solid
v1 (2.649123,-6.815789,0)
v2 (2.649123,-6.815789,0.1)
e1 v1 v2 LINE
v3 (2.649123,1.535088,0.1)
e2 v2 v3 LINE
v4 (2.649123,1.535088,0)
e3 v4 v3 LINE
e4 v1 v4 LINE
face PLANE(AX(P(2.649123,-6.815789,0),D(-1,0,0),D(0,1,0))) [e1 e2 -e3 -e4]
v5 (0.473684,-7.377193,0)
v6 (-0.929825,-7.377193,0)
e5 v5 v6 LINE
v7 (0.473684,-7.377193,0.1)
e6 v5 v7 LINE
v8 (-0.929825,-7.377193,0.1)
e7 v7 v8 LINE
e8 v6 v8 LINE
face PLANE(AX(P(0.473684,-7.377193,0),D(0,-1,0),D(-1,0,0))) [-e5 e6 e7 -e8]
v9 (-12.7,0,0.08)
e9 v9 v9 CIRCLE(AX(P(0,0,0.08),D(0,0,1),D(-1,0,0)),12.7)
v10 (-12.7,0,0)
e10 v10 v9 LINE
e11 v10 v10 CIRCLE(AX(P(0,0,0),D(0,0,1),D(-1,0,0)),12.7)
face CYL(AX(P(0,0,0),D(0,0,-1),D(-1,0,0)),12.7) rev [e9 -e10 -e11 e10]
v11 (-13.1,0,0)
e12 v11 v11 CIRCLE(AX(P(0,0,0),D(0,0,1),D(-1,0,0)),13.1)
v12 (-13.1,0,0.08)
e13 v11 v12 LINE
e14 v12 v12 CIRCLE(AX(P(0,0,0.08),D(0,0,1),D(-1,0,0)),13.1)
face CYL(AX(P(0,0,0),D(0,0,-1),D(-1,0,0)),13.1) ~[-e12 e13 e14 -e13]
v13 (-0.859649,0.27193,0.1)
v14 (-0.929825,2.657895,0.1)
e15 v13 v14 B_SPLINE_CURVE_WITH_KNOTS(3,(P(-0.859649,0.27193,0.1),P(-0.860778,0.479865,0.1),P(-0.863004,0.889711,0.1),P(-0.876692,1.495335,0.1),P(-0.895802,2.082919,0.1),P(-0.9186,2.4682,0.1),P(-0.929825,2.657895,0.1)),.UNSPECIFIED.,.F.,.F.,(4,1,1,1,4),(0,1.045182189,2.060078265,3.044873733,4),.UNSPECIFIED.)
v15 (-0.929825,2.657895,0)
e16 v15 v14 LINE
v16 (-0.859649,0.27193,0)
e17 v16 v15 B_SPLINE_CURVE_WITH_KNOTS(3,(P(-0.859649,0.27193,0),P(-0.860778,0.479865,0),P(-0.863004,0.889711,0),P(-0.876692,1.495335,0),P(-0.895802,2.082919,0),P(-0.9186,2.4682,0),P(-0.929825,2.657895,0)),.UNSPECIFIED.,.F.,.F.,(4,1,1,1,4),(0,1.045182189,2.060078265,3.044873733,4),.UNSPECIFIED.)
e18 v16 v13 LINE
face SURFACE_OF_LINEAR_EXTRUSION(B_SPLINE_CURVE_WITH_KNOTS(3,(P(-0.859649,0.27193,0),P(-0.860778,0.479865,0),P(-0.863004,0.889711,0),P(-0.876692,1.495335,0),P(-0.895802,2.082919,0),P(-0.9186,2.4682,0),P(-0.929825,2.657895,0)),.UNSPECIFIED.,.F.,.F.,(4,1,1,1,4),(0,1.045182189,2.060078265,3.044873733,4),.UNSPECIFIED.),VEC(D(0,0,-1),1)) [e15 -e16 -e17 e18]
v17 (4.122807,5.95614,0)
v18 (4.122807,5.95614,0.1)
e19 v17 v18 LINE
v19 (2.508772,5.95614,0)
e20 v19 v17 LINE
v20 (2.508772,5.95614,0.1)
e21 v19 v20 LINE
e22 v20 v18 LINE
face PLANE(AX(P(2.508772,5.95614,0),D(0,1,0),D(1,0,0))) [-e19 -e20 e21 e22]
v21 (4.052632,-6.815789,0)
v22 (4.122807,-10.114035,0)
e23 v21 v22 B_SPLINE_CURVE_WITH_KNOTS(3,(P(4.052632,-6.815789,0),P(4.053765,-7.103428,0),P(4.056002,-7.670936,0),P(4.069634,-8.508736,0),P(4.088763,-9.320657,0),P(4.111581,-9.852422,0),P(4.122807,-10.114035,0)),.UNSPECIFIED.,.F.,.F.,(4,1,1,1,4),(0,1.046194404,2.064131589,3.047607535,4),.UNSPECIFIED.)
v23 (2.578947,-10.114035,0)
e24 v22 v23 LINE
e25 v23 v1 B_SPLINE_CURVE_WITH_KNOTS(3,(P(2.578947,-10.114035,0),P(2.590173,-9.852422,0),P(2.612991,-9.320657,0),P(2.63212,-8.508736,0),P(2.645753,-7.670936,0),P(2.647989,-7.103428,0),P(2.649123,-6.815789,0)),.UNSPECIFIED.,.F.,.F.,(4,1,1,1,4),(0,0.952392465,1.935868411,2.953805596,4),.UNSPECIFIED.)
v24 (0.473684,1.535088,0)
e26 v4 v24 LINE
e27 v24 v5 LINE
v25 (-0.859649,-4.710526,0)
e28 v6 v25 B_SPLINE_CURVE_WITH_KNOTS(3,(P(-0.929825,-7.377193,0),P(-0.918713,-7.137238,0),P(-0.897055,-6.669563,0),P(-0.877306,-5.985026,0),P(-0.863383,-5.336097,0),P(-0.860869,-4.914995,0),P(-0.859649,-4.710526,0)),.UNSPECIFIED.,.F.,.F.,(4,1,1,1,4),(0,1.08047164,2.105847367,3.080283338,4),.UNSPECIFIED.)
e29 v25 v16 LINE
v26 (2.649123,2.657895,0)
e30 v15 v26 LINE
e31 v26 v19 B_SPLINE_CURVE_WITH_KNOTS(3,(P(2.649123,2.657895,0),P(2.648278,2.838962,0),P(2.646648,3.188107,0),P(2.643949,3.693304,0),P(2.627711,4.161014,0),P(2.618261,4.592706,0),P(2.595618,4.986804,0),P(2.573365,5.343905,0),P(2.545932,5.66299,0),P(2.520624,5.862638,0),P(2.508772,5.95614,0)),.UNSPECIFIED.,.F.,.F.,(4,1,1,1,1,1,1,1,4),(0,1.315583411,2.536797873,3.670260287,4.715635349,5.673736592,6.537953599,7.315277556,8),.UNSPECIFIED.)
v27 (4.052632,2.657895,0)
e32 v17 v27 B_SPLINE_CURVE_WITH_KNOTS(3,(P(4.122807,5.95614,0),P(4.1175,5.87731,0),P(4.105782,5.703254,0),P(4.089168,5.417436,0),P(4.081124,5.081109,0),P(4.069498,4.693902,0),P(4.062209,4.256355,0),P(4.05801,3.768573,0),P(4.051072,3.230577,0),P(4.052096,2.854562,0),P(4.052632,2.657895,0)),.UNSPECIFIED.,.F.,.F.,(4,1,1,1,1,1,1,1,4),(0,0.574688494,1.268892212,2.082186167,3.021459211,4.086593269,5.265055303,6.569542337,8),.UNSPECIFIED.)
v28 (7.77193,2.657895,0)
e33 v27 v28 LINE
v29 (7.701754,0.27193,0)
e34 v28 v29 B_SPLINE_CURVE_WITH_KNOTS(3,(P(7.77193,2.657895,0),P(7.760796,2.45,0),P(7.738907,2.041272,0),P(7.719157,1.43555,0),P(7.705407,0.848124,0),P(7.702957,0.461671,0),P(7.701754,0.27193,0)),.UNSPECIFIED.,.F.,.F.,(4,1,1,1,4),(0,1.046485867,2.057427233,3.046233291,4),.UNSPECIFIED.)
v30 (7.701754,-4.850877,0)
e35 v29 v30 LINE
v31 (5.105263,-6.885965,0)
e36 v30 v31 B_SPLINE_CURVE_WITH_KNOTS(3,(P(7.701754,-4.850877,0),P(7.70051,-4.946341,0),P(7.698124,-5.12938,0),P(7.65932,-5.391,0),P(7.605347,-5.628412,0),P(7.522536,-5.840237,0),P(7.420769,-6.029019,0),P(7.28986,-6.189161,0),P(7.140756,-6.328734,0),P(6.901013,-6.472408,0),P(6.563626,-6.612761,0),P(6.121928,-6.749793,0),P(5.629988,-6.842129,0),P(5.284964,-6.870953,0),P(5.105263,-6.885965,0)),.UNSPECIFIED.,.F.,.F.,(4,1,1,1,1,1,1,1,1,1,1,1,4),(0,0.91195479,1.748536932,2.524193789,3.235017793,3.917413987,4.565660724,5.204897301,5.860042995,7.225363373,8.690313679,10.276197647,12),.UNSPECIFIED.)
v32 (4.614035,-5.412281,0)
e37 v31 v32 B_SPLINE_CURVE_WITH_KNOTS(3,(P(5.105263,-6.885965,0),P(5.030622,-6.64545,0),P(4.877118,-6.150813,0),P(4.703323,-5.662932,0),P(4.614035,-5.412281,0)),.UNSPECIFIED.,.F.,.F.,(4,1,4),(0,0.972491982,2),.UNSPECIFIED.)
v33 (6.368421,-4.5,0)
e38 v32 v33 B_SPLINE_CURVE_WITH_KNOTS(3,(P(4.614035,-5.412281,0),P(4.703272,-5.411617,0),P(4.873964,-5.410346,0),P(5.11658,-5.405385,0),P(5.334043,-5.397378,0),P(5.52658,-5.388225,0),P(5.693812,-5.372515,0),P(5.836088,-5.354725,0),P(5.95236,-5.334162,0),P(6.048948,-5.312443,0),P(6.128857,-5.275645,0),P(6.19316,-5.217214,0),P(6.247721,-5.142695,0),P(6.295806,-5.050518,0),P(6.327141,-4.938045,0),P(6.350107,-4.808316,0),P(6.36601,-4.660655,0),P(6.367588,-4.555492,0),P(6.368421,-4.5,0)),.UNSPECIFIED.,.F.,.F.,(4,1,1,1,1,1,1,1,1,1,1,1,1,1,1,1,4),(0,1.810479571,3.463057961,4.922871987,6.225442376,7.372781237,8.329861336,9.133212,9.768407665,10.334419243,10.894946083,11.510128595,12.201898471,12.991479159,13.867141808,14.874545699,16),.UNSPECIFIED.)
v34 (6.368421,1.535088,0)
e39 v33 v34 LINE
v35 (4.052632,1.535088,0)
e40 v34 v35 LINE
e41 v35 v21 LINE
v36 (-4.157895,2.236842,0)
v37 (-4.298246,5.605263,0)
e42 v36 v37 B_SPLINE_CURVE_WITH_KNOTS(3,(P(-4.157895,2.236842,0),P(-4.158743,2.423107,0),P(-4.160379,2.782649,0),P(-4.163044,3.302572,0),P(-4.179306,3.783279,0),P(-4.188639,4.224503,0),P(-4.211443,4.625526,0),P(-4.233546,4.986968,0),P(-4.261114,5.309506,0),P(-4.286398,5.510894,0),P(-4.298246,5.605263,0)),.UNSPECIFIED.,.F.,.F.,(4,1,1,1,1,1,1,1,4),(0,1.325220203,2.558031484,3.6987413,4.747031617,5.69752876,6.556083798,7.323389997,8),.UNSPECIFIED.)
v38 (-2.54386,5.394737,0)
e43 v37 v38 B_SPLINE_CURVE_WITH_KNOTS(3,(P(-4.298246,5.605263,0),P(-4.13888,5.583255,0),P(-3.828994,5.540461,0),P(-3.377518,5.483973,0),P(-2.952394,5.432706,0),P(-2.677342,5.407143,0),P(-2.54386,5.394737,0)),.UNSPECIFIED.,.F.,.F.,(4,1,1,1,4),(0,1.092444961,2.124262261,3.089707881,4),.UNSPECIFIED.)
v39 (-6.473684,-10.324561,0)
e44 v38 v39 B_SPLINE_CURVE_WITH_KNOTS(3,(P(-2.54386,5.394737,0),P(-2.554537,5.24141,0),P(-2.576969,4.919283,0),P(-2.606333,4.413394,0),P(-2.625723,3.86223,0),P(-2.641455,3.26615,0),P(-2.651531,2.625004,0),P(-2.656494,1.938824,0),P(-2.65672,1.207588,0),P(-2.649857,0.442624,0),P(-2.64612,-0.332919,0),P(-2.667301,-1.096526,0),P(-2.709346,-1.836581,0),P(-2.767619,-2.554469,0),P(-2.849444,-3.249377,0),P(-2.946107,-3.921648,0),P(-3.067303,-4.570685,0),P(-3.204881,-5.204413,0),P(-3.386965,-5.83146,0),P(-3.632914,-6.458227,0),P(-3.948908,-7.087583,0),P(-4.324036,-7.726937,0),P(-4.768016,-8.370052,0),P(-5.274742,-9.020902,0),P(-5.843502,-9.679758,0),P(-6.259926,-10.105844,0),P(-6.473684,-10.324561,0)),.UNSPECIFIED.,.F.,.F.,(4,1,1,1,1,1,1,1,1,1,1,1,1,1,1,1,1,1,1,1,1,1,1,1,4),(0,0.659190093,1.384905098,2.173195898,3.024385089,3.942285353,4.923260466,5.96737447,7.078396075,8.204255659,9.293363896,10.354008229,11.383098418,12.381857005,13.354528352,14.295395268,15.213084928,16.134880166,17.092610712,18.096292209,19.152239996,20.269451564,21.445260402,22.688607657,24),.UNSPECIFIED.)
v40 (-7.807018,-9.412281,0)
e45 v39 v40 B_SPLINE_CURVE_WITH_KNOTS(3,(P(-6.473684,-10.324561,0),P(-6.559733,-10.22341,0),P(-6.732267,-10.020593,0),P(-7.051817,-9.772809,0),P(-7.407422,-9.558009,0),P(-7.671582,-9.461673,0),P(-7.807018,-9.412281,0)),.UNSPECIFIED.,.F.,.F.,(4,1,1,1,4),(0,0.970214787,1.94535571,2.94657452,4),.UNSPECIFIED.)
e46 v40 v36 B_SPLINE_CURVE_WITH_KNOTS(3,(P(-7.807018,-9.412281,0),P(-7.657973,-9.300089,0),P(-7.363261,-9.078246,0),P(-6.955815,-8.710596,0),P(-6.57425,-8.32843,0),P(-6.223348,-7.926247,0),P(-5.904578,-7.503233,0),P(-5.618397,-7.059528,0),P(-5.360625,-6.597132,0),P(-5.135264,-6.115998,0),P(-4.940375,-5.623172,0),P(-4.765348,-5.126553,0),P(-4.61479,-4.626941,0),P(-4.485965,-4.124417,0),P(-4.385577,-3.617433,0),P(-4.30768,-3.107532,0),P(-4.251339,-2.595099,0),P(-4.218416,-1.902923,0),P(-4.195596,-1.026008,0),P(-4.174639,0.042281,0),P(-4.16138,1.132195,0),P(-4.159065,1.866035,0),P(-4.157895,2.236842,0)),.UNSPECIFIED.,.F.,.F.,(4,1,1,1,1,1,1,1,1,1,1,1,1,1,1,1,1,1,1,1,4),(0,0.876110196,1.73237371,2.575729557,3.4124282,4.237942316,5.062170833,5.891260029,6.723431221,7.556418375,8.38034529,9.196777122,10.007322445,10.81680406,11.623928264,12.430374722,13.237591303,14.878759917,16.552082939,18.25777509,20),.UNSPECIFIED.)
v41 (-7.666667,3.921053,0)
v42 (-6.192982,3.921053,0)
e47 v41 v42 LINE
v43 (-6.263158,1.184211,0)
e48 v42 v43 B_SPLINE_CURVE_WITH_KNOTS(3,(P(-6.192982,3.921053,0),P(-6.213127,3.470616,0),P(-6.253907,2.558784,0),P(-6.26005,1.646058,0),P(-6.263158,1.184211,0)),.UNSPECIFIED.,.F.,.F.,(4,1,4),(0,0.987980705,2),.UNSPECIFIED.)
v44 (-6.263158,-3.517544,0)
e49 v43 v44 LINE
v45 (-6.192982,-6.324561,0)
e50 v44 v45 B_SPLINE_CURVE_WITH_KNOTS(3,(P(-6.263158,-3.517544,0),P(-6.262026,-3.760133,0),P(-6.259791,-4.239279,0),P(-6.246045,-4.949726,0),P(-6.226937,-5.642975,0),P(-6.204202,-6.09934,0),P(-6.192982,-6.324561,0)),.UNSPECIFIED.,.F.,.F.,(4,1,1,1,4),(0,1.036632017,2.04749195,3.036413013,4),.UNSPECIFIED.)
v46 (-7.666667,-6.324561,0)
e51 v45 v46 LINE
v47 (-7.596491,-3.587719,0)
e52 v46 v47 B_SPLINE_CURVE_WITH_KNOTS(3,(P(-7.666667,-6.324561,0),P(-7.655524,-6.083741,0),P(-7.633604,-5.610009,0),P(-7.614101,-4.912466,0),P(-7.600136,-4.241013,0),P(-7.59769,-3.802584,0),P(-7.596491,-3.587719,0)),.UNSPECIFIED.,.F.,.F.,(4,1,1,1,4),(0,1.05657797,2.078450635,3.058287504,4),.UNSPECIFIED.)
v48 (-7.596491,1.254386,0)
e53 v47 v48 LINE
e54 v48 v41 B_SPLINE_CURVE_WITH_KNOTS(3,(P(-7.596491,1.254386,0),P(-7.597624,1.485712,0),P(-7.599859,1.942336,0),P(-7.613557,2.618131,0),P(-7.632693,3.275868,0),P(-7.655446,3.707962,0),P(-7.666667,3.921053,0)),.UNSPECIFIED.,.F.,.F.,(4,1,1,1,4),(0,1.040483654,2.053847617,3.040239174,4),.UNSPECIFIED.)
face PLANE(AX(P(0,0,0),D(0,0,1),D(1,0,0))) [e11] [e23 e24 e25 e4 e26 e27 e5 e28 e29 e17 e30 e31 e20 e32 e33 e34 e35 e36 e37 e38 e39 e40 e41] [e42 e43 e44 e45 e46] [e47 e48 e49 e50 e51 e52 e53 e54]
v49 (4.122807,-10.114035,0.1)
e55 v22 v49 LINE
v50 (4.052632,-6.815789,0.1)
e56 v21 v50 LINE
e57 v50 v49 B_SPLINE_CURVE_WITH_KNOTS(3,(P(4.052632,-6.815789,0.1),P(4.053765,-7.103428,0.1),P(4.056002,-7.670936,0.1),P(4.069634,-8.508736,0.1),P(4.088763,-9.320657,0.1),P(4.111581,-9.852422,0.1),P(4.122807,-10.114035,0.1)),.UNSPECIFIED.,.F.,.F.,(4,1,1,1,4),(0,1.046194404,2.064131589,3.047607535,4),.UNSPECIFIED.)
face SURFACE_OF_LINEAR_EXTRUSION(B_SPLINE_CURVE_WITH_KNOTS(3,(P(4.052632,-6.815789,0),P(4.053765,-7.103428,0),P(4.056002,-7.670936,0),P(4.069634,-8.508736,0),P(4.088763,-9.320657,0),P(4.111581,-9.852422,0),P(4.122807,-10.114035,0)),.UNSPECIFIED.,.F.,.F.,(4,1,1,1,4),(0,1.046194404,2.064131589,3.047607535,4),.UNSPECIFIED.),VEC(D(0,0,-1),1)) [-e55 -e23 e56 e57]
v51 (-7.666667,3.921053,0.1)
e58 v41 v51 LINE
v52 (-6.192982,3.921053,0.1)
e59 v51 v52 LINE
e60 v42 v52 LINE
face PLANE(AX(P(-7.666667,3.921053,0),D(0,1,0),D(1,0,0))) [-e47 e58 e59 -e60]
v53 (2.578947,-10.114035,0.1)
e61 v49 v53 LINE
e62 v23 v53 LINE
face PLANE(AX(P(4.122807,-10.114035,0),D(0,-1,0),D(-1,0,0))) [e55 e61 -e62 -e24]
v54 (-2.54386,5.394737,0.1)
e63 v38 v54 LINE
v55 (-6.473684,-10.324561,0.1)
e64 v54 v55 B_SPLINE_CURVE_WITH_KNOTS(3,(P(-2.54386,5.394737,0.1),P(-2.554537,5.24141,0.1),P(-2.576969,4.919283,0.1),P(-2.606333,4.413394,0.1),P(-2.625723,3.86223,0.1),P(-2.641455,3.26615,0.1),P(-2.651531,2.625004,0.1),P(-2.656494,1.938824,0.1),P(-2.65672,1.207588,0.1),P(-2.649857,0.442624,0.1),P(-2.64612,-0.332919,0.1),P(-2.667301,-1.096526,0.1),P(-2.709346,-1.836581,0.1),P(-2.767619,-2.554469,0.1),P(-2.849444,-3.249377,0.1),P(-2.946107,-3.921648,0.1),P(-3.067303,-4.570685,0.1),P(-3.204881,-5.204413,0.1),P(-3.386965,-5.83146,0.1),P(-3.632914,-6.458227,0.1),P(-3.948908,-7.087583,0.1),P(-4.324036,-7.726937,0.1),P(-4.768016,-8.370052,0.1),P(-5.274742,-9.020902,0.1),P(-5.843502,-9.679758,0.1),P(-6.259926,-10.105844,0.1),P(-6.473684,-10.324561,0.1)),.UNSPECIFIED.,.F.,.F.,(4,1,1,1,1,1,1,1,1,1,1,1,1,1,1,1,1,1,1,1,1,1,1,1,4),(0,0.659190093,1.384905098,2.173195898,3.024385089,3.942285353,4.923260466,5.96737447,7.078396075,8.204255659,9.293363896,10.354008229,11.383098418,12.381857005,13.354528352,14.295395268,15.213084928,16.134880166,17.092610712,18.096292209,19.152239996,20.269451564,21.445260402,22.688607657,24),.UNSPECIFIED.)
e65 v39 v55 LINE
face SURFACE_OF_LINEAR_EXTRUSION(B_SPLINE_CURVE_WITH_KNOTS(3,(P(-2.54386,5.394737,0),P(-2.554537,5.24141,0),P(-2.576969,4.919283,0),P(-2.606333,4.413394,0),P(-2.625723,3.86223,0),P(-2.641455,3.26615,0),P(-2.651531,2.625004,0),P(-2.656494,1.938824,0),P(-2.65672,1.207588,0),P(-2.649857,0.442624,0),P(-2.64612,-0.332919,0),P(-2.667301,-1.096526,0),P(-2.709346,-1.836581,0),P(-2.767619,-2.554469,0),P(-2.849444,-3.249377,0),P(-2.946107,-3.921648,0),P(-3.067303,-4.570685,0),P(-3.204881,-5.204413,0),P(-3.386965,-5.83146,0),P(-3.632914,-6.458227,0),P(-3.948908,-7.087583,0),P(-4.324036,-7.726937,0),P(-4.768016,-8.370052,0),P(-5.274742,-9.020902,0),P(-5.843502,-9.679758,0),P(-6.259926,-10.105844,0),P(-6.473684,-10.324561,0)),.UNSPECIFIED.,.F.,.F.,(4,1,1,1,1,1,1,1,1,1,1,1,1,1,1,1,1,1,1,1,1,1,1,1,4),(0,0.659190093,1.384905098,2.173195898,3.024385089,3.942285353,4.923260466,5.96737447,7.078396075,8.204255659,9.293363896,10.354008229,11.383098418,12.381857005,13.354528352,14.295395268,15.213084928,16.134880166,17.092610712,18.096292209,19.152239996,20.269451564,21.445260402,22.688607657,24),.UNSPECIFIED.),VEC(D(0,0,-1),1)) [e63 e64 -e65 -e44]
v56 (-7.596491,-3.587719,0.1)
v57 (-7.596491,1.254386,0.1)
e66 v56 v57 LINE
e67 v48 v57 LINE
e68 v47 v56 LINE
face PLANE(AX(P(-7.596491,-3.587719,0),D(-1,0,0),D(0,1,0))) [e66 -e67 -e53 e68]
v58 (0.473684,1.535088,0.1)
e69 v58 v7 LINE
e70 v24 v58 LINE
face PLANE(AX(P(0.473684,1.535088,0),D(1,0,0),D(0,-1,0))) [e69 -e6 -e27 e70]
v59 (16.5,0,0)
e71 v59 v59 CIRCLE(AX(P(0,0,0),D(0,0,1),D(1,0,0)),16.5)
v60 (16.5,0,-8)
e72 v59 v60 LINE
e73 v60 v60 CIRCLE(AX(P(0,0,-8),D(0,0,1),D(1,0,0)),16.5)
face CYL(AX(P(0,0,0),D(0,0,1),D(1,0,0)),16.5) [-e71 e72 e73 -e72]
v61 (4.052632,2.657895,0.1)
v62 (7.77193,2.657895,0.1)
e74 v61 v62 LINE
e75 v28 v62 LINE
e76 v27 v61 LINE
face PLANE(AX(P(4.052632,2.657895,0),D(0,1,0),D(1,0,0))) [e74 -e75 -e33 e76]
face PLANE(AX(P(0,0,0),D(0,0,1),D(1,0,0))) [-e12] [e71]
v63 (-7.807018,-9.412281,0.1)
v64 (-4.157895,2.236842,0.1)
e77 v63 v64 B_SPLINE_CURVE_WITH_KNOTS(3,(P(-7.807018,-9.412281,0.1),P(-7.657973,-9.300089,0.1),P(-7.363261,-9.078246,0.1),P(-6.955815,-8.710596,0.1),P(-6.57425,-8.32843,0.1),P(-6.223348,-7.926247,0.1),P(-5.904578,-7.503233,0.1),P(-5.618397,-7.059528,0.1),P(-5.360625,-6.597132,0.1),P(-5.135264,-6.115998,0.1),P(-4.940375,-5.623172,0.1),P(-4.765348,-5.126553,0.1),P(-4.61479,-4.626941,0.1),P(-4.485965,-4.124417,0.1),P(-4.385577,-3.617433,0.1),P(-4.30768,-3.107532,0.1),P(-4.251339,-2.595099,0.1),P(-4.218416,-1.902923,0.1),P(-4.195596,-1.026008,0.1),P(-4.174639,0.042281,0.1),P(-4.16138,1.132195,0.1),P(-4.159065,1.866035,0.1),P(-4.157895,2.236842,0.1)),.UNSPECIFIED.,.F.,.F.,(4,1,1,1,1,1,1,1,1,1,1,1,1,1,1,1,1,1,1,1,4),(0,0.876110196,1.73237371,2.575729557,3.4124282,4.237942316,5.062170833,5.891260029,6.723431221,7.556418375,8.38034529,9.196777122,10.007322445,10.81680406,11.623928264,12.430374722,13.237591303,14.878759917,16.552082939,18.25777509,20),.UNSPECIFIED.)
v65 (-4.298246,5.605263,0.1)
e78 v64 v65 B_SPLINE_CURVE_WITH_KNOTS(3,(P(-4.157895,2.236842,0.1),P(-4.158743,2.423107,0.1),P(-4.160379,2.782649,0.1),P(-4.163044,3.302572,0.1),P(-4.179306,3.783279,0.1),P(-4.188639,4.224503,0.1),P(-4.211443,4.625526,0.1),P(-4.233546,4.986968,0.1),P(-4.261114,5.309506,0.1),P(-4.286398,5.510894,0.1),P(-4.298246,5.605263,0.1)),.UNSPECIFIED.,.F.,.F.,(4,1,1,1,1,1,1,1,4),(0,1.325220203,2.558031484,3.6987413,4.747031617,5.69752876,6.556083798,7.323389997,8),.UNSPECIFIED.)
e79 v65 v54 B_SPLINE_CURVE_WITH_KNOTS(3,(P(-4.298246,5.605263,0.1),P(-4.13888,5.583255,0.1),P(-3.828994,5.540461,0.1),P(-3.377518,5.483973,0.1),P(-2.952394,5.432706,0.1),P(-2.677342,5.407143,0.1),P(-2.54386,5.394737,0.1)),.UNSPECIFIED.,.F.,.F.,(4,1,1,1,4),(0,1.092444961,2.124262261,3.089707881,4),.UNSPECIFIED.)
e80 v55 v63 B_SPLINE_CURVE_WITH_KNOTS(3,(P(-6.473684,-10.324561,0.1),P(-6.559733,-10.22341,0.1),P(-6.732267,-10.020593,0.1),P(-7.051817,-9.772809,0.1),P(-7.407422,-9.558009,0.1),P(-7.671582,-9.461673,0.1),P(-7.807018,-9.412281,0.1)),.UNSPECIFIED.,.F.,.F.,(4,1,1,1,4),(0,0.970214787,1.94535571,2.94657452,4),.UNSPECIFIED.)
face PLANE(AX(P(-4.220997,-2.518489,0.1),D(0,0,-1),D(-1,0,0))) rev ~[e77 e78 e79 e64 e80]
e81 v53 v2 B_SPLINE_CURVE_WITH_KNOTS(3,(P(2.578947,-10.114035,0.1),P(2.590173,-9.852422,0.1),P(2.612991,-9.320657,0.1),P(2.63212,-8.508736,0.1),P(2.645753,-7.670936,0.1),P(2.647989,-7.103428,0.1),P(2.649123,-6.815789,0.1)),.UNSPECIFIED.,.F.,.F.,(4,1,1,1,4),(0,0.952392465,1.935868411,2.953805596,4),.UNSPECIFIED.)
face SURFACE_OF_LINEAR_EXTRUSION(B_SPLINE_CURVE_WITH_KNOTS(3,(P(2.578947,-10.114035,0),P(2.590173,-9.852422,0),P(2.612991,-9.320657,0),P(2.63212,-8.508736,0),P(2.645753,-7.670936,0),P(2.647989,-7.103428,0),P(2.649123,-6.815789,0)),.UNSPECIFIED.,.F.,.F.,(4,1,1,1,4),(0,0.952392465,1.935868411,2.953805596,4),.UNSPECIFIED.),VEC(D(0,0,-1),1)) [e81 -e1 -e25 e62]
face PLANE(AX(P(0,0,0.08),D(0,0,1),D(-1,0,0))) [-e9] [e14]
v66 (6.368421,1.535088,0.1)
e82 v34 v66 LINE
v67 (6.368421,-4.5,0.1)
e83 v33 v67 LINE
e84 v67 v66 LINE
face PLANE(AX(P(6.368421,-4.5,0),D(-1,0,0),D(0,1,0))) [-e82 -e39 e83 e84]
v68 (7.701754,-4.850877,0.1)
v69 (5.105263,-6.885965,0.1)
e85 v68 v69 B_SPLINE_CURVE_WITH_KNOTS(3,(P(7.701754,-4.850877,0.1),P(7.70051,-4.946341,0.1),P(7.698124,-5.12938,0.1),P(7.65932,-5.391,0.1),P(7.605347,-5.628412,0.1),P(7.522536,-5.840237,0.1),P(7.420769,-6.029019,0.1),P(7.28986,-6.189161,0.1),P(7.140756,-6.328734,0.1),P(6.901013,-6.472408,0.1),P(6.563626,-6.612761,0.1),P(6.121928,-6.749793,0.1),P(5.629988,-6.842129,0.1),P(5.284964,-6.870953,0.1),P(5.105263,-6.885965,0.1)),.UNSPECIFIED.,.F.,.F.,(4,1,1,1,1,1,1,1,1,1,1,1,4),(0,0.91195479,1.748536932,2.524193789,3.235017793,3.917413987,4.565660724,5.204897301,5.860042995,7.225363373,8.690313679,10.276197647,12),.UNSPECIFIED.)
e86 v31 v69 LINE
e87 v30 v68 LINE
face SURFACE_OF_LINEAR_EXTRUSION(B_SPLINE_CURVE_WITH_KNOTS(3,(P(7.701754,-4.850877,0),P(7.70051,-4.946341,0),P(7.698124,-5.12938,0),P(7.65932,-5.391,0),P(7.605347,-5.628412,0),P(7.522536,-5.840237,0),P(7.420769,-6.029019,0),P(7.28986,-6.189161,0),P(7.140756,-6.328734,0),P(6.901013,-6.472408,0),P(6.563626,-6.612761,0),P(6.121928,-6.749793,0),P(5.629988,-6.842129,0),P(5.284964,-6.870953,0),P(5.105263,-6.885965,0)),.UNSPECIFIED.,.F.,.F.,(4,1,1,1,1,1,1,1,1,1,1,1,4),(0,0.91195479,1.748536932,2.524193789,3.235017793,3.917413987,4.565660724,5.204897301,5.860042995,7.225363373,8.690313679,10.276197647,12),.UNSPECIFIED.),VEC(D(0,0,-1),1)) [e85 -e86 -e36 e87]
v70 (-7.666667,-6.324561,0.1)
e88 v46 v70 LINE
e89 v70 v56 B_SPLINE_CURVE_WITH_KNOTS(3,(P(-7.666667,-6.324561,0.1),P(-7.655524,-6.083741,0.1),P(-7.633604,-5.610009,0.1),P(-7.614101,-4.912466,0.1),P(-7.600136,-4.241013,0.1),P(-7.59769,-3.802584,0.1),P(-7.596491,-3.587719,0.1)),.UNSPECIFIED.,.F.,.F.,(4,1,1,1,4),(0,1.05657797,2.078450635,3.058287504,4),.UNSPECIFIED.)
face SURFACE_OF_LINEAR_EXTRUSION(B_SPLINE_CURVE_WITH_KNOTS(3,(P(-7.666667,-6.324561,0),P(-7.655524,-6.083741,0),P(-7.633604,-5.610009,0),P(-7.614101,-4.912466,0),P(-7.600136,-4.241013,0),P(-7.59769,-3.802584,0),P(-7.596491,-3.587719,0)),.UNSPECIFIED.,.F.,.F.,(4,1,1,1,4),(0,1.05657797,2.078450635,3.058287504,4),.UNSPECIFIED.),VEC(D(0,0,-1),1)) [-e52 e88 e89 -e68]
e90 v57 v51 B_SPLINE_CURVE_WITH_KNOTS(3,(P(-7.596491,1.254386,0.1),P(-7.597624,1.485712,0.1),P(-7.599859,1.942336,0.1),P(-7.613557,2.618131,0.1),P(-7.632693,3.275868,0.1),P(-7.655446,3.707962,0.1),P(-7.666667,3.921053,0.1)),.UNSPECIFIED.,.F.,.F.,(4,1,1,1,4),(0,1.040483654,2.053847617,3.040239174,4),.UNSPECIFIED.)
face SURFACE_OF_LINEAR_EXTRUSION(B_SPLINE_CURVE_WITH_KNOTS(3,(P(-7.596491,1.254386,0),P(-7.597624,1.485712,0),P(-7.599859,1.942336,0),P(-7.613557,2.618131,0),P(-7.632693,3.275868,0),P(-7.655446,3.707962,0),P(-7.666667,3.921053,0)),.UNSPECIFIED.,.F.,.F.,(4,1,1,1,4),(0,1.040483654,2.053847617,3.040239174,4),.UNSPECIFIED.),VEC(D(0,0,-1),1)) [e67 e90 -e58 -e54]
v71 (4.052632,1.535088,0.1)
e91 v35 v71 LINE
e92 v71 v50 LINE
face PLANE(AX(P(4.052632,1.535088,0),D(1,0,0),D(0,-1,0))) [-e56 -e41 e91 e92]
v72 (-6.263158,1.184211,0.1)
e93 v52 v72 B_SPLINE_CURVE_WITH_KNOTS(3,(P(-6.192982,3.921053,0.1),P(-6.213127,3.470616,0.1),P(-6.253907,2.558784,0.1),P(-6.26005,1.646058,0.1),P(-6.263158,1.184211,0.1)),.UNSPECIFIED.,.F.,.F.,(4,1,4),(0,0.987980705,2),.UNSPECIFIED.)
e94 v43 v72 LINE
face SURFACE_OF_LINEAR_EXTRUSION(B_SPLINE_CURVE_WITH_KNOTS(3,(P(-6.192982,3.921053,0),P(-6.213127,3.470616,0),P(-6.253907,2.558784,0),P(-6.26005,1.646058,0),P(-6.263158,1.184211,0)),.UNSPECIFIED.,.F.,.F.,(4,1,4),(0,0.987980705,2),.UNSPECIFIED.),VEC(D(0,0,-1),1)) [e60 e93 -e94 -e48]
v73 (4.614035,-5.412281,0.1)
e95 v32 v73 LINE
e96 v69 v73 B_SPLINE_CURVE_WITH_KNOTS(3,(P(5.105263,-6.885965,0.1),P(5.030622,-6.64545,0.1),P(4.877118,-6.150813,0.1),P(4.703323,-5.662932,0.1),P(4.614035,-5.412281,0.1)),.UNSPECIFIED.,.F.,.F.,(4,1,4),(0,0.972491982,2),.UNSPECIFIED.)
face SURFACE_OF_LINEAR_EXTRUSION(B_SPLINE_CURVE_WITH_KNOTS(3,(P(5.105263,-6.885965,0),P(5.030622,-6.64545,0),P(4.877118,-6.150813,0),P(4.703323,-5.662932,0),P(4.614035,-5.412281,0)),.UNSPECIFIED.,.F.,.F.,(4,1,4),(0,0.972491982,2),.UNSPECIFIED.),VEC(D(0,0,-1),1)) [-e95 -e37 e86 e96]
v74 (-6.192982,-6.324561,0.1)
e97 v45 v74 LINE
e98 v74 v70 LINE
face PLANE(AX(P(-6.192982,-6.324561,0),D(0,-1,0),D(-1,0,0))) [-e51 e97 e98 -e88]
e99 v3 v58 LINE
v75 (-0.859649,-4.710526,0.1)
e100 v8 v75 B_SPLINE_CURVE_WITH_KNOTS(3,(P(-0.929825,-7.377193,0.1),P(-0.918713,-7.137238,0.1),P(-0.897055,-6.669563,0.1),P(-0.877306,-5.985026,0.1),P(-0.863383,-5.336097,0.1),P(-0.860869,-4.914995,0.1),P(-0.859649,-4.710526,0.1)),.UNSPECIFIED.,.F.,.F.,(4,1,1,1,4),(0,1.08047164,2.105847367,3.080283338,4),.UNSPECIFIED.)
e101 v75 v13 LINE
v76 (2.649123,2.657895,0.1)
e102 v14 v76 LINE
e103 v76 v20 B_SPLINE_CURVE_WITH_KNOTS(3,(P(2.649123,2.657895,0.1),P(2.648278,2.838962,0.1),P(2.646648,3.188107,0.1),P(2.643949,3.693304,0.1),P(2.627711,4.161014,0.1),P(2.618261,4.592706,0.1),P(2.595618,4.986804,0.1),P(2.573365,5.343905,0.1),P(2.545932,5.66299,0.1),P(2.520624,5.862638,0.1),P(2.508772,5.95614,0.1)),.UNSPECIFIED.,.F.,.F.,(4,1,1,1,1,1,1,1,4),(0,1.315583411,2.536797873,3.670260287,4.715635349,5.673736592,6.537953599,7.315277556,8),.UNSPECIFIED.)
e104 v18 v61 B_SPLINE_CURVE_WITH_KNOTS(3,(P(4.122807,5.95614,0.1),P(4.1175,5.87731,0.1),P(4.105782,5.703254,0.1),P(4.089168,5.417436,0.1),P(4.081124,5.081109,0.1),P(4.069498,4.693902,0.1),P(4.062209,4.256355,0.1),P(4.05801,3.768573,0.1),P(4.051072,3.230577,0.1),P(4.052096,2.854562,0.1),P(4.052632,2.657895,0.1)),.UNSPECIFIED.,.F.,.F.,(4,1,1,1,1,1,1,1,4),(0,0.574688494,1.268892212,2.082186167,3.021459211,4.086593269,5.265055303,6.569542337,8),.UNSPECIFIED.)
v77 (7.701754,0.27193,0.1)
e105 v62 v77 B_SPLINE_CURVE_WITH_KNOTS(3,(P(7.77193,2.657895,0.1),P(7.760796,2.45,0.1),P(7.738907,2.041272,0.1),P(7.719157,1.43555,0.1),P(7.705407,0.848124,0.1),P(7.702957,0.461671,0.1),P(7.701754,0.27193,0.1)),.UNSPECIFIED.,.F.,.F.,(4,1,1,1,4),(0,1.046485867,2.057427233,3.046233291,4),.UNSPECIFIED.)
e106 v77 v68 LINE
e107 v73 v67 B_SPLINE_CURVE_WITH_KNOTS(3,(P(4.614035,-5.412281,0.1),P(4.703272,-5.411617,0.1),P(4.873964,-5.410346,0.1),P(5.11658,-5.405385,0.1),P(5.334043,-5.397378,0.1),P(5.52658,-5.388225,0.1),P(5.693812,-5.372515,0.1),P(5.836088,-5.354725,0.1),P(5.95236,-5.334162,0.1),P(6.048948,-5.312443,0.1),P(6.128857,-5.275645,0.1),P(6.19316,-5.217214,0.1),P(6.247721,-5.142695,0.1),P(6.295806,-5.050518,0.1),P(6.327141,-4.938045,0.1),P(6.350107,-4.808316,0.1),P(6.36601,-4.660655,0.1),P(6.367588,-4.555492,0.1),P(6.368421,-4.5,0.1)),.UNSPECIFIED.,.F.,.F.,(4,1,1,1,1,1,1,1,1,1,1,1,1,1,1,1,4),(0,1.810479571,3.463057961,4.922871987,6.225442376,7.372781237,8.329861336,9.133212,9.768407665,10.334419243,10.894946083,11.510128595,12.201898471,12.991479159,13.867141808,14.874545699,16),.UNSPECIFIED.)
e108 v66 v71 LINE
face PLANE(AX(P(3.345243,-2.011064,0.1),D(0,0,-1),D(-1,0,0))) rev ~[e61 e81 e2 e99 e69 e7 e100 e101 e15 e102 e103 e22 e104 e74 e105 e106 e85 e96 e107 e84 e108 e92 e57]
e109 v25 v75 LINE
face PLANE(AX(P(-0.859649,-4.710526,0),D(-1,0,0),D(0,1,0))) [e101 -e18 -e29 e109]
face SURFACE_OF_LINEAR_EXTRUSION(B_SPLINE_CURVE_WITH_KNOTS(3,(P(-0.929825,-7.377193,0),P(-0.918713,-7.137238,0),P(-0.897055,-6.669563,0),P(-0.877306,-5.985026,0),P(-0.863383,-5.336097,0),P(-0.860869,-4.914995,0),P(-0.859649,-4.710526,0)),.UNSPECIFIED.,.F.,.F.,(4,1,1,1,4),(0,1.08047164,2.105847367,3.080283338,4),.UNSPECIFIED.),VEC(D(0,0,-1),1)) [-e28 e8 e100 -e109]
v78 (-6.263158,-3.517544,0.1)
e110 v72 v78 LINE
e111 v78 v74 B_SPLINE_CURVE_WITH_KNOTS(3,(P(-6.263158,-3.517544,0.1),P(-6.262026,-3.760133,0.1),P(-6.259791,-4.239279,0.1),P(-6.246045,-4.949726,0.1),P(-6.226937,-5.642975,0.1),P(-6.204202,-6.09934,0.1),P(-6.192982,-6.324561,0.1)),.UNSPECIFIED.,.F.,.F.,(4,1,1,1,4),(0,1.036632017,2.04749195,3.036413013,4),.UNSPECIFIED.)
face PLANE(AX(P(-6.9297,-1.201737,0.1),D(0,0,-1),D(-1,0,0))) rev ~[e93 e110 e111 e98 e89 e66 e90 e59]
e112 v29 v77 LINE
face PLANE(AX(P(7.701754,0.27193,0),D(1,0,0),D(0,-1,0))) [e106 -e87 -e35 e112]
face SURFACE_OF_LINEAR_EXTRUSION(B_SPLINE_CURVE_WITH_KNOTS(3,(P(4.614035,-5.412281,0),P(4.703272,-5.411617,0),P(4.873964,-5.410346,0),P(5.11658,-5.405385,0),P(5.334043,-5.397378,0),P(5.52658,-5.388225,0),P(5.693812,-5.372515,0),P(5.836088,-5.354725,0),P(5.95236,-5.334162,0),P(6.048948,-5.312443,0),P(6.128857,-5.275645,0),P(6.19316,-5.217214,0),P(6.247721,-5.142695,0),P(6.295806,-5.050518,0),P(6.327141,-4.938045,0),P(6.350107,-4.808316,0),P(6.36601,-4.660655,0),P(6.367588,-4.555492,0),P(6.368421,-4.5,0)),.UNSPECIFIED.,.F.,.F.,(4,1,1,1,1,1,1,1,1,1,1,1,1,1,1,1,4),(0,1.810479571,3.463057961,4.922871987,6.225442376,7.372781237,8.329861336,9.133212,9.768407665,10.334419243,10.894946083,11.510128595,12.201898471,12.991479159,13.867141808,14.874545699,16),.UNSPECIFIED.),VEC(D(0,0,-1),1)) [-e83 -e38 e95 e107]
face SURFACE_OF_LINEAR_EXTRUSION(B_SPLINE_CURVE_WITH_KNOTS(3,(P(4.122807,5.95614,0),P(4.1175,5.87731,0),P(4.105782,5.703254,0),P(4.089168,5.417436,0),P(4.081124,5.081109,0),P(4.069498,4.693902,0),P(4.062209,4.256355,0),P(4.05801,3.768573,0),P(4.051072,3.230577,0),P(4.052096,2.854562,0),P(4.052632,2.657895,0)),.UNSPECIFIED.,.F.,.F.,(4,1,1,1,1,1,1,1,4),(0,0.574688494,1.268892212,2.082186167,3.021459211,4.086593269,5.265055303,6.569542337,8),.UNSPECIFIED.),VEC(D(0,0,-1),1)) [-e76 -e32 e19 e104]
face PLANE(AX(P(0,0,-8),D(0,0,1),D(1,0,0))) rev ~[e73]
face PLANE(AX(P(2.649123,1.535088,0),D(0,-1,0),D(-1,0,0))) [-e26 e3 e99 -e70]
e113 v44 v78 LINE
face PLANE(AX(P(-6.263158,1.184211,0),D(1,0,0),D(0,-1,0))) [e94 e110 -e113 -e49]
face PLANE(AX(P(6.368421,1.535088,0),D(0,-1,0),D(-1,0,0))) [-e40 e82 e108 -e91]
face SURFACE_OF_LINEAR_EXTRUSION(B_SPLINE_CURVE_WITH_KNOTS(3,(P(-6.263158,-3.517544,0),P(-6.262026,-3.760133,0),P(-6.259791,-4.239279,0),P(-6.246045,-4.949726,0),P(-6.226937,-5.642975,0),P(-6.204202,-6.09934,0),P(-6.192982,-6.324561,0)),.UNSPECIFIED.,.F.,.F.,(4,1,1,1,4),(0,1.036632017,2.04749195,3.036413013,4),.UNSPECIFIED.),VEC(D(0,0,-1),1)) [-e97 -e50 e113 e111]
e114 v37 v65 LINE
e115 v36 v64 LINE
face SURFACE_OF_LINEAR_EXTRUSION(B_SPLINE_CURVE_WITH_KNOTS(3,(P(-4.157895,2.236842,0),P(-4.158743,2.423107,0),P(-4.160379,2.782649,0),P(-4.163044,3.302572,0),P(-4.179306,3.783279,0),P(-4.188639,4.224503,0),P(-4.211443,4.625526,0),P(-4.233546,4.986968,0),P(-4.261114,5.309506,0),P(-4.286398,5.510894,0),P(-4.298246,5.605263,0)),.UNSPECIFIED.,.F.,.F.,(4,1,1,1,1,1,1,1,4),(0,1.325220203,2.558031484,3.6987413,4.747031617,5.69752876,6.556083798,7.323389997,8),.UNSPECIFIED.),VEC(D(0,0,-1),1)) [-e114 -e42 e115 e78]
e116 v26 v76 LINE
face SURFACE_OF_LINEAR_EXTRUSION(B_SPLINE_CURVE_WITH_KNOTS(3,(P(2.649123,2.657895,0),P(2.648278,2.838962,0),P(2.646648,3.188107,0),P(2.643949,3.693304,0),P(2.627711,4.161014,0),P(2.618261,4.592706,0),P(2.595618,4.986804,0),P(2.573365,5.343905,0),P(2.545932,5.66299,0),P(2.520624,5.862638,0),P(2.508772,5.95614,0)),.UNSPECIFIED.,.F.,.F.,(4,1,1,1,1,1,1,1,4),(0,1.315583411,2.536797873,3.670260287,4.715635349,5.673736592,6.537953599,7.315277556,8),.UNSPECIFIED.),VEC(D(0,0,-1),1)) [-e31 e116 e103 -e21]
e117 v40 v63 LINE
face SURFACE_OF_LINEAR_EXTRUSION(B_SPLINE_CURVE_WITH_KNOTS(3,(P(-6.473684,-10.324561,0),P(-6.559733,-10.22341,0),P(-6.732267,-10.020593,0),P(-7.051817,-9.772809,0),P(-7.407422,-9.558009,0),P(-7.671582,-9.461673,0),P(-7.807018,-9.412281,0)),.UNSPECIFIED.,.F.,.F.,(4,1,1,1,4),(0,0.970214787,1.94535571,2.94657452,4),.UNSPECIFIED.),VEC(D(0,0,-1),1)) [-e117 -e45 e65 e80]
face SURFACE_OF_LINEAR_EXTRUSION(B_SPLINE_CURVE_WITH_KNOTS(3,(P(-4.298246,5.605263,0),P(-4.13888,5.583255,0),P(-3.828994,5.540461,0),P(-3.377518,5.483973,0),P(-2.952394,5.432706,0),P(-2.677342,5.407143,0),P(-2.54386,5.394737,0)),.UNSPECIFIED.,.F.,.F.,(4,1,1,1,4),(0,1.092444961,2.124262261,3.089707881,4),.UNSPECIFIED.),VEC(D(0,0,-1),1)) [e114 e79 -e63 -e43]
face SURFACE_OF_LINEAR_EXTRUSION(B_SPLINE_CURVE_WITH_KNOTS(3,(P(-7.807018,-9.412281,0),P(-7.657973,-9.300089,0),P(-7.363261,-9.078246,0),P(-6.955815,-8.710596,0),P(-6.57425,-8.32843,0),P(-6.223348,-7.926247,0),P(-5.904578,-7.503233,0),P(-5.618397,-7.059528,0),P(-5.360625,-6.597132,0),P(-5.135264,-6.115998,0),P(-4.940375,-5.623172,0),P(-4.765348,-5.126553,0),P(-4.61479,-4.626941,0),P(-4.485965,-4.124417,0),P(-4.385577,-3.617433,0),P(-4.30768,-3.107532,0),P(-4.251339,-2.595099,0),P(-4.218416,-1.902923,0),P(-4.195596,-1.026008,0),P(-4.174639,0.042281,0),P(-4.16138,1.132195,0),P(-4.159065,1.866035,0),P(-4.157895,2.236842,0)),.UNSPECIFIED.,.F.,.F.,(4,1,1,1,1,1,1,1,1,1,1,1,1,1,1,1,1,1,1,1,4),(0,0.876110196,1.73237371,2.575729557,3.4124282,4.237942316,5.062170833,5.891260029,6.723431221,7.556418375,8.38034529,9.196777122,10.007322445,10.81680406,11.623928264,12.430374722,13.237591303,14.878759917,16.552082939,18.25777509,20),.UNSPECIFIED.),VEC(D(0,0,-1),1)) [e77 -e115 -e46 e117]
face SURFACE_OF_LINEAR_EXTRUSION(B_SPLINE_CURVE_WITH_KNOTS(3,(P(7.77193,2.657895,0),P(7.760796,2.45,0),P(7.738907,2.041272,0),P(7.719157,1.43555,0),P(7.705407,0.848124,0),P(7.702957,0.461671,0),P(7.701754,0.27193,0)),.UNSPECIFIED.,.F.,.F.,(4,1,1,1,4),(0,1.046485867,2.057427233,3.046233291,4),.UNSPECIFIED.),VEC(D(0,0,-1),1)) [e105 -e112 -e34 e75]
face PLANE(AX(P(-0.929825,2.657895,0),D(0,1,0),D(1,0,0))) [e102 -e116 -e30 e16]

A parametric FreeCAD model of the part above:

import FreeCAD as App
import Part
import Sketcher
from FreeCAD import Vector
Q = App.Units.Quantity

doc = App.newDocument("Part")
body = doc.addObject("PartDesign::Body", "Body")

# Sketch on XY plane
sketch1 = body.newObject("Sketcher::SketchObject", "Sketch")
sketch1.AttachmentSupport = (doc.getObject("XY_Plane"), [""])
sketch1.MapMode = "FlatFace"
sketch1.addGeometry(Part.Circle(Vector(0, 0, 0), Vector(0, 0, 1), 16.5), False)
sketch1.addConstraint([
    Sketcher.Constraint("Coincident", 0, 3, -1, 1),
    Sketcher.Constraint("Diameter", 0, Q("33 mm")),
])
pad1 = body.newObject("PartDesign::Pad", "Pad")
pad1.Profile = sketch1
pad1.Length = 8
pad1.Reversed = True

# Sketch on XY plane
sketch2 = body.newObject("Sketcher::SketchObject", "Sketch001")
sketch2.AttachmentSupport = (doc.getObject("XY_Plane"), [""])
sketch2.MapMode = "FlatFace"
sketch2.addGeometry([
    Part.BSplineCurve([Vector(2.649123, 2.657895, 0), Vector(2.648278, 2.838962, 0), Vector(2.646648, 3.188107, 0), Vector(2.643949, 3.693304, 0), Vector(2.627711, 4.161014, 0), Vector(2.618261, 4.592706, 0), Vector(2.595618, 4.986804, 0), Vector(2.573365, 5.343905, 0), Vector(2.545932, 5.66299, 0), Vector(2.520624, 5.862638, 0), Vector(2.508772, 5.95614, 0)], [4, 1, 1, 1, 1, 1, 1, 1, 4], [0, 1.315583411, 2.536797873, 3.670260287, 4.715635349, 5.673736592, 6.537953599, 7.315277556, 8], False, 3, [1, 1, 1, 1, 1, 1, 1, 1, 1, 1, 1], False),  # 0
    Part.LineSegment(Vector(2.649123, 2.657895, 0), Vector(-0.929825, 2.657895, 0)),  # 1
    Part.BSplineCurve([Vector(-0.859649, 0.27193, 0), Vector(-0.860778, 0.479865, 0), Vector(-0.863004, 0.889711, 0), Vector(-0.876692, 1.495335, 0), Vector(-0.895802, 2.082919, 0), Vector(-0.9186, 2.4682, 0), Vector(-0.929825, 2.657895, 0)], [4, 1, 1, 1, 4], [0, 1.045182189, 2.060078265, 3.044873733, 4], False, 3, [1, 1, 1, 1, 1, 1, 1], False),  # 2
    Part.LineSegment(Vector(-0.859649, 0.27193, 0), Vector(-0.859649, -4.710526, 0)),  # 3
    Part.BSplineCurve([Vector(-0.929825, -7.377193, 0), Vector(-0.918713, -7.137238, 0), Vector(-0.897055, -6.669563, 0), Vector(-0.877306, -5.985026, 0), Vector(-0.863383, -5.336097, 0), Vector(-0.860869, -4.914995, 0), Vector(-0.859649, -4.710526, 0)], [4, 1, 1, 1, 4], [0, 1.08047164, 2.105847367, 3.080283338, 4], False, 3, [1, 1, 1, 1, 1, 1, 1], False),  # 4
    Part.LineSegment(Vector(-0.929825, -7.377193, 0), Vector(0.473684, -7.377193, 0)),  # 5
    Part.LineSegment(Vector(0.473684, -7.377193, 0), Vector(0.473684, 1.535088, 0)),  # 6
    Part.LineSegment(Vector(0.473684, 1.535088, 0), Vector(2.649123, 1.535088, 0)),  # 7
    Part.LineSegment(Vector(2.649123, 1.535088, 0), Vector(2.649123, -6.815789, 0)),  # 8
    Part.BSplineCurve([Vector(2.578947, -10.114035, 0), Vector(2.590173, -9.852422, 0), Vector(2.612991, -9.320657, 0), Vector(2.63212, -8.508736, 0), Vector(2.645753, -7.670936, 0), Vector(2.647989, -7.103428, 0), Vector(2.649123, -6.815789, 0)], [4, 1, 1, 1, 4], [0, 0.952392465, 1.935868411, 2.953805596, 4], False, 3, [1, 1, 1, 1, 1, 1, 1], False),  # 9
    Part.LineSegment(Vector(2.578947, -10.114035, 0), Vector(4.122807, -10.114035, 0)),  # 10
    Part.BSplineCurve([Vector(4.052632, -6.815789, 0), Vector(4.053765, -7.103428, 0), Vector(4.056002, -7.670936, 0), Vector(4.069634, -8.508736, 0), Vector(4.088763, -9.320657, 0), Vector(4.111581, -9.852422, 0), Vector(4.122807, -10.114035, 0)], [4, 1, 1, 1, 4], [0, 1.046194404, 2.064131589, 3.047607535, 4], False, 3, [1, 1, 1, 1, 1, 1, 1], False),  # 11
    Part.LineSegment(Vector(4.052632, -6.815789, 0), Vector(4.052632, 1.535088, 0)),  # 12
    Part.LineSegment(Vector(4.052632, 1.535088, 0), Vector(6.368421, 1.535088, 0)),  # 13
    Part.LineSegment(Vector(6.368421, 1.535088, 0), Vector(6.368421, -4.5, 0)),  # 14
    Part.BSplineCurve([Vector(4.614035, -5.412281, 0), Vector(4.703272, -5.411617, 0), Vector(4.873964, -5.410346, 0), Vector(5.11658, -5.405385, 0), Vector(5.334043, -5.397378, 0), Vector(5.52658, -5.388225, 0), Vector(5.693812, -5.372515, 0), Vector(5.836088, -5.354725, 0), Vector(5.95236, -5.334162, 0), Vector(6.048948, -5.312443, 0), Vector(6.128857, -5.275645, 0), Vector(6.19316, -5.217214, 0), Vector(6.247721, -5.142695, 0), Vector(6.295806, -5.050518, 0), Vector(6.327141, -4.938045, 0), Vector(6.350107, -4.808316, 0), Vector(6.36601, -4.660655, 0), Vector(6.367588, -4.555492, 0), Vector(6.368421, -4.5, 0)], [4, 1, 1, 1, 1, 1, 1, 1, 1, 1, 1, 1, 1, 1, 1, 1, 4], [0, 1.810479571, 3.463057961, 4.922871987, 6.225442376, 7.372781237, 8.329861336, 9.133212, 9.768407665, 10.334419243, 10.894946083, 11.510128595, 12.201898471, 12.991479159, 13.867141808, 14.874545699, 16], False, 3, [1, 1, 1, 1, 1, 1, 1, 1, 1, 1, 1, 1, 1, 1, 1, 1, 1, 1, 1], False),  # 15
    Part.BSplineCurve([Vector(5.105263, -6.885965, 0), Vector(5.030622, -6.64545, 0), Vector(4.877118, -6.150813, 0), Vector(4.703323, -5.662932, 0), Vector(4.614035, -5.412281, 0)], [4, 1, 4], [0, 0.972491982, 2], False, 3, [1, 1, 1, 1, 1], False),  # 16
    Part.BSplineCurve([Vector(7.701754, -4.850877, 0), Vector(7.70051, -4.946341, 0), Vector(7.698124, -5.12938, 0), Vector(7.65932, -5.391, 0), Vector(7.605347, -5.628412, 0), Vector(7.522536, -5.840237, 0), Vector(7.420769, -6.029019, 0), Vector(7.28986, -6.189161, 0), Vector(7.140756, -6.328734, 0), Vector(6.901013, -6.472408, 0), Vector(6.563626, -6.612761, 0), Vector(6.121928, -6.749793, 0), Vector(5.629988, -6.842129, 0), Vector(5.284964, -6.870953, 0), Vector(5.105263, -6.885965, 0)], [4, 1, 1, 1, 1, 1, 1, 1, 1, 1, 1, 1, 4], [0, 0.91195479, 1.748536932, 2.524193789, 3.235017793, 3.917413987, 4.565660724, 5.204897301, 5.860042995, 7.225363373, 8.690313679, 10.276197647, 12], False, 3, [1, 1, 1, 1, 1, 1, 1, 1, 1, 1, 1, 1, 1, 1, 1], False),  # 17
    Part.LineSegment(Vector(7.701754, -4.850877, 0), Vector(7.701754, 0.27193, 0)),  # 18
    Part.BSplineCurve([Vector(7.77193, 2.657895, 0), Vector(7.760796, 2.45, 0), Vector(7.738907, 2.041272, 0), Vector(7.719157, 1.43555, 0), Vector(7.705407, 0.848124, 0), Vector(7.702957, 0.461671, 0), Vector(7.701754, 0.27193, 0)], [4, 1, 1, 1, 4], [0, 1.046485867, 2.057427233, 3.046233291, 4], False, 3, [1, 1, 1, 1, 1, 1, 1], False),  # 19
    Part.LineSegment(Vector(7.77193, 2.657895, 0), Vector(4.052632, 2.657895, 0)),  # 20
    Part.BSplineCurve([Vector(4.122807, 5.95614, 0), Vector(4.1175, 5.87731, 0), Vector(4.105782, 5.703254, 0), Vector(4.089168, 5.417436, 0), Vector(4.081124, 5.081109, 0), Vector(4.069498, 4.693902, 0), Vector(4.062209, 4.256355, 0), Vector(4.05801, 3.768573, 0), Vector(4.051072, 3.230577, 0), Vector(4.052096, 2.854562, 0), Vector(4.052632, 2.657895, 0)], [4, 1, 1, 1, 1, 1, 1, 1, 4], [0, 0.574688494, 1.268892212, 2.082186167, 3.021459211, 4.086593269, 5.265055303, 6.569542337, 8], False, 3, [1, 1, 1, 1, 1, 1, 1, 1, 1, 1, 1], False),  # 21
    Part.LineSegment(Vector(4.122807, 5.95614, 0), Vector(2.508772, 5.95614, 0)),  # 22
    Part.BSplineCurve([Vector(-2.54386, 5.394737, 0), Vector(-2.554537, 5.24141, 0), Vector(-2.576969, 4.919283, 0), Vector(-2.606333, 4.413394, 0), Vector(-2.625723, 3.86223, 0), Vector(-2.641455, 3.26615, 0), Vector(-2.651531, 2.625004, 0), Vector(-2.656494, 1.938824, 0), Vector(-2.65672, 1.207588, 0), Vector(-2.649857, 0.442624, 0), Vector(-2.64612, -0.332919, 0), Vector(-2.667301, -1.096526, 0), Vector(-2.709346, -1.836581, 0), Vector(-2.767619, -2.554469, 0), Vector(-2.849444, -3.249377, 0), Vector(-2.946107, -3.921648, 0), Vector(-3.067303, -4.570685, 0), Vector(-3.204881, -5.204413, 0), Vector(-3.386965, -5.83146, 0), Vector(-3.632914, -6.458227, 0), Vector(-3.948908, -7.087583, 0), Vector(-4.324036, -7.726937, 0), Vector(-4.768016, -8.370052, 0), Vector(-5.274742, -9.020902, 0), Vector(-5.843502, -9.679758, 0), Vector(-6.259926, -10.105844, 0), Vector(-6.473684, -10.324561, 0)], [4, 1, 1, 1, 1, 1, 1, 1, 1, 1, 1, 1, 1, 1, 1, 1, 1, 1, 1, 1, 1, 1, 1, 1, 4], [0, 0.659190093, 1.384905098, 2.173195898, 3.024385089, 3.942285353, 4.923260466, 5.96737447, 7.078396075, 8.204255659, 9.293363896, 10.354008229, 11.383098418, 12.381857005, 13.354528352, 14.295395268, 15.213084928, 16.134880166, 17.092610712, 18.096292209, 19.152239996, 20.269451564, 21.445260402, 22.688607657, 24], False, 3, [1, 1, 1, 1, 1, 1, 1, 1, 1, 1, 1, 1, 1, 1, 1, 1, 1, 1, 1, 1, 1, 1, 1, 1, 1, 1, 1], False),  # 23
    Part.BSplineCurve([Vector(-4.298246, 5.605263, 0), Vector(-4.13888, 5.583255, 0), Vector(-3.828994, 5.540461, 0), Vector(-3.377518, 5.483973, 0), Vector(-2.952394, 5.432706, 0), Vector(-2.677342, 5.407143, 0), Vector(-2.54386, 5.394737, 0)], [4, 1, 1, 1, 4], [0, 1.092444961, 2.124262261, 3.089707881, 4], False, 3, [1, 1, 1, 1, 1, 1, 1], False),  # 24
    Part.BSplineCurve([Vector(-4.157895, 2.236842, 0), Vector(-4.158743, 2.423107, 0), Vector(-4.160379, 2.782649, 0), Vector(-4.163044, 3.302572, 0), Vector(-4.179306, 3.783279, 0), Vector(-4.188639, 4.224503, 0), Vector(-4.211443, 4.625526, 0), Vector(-4.233546, 4.986968, 0), Vector(-4.261114, 5.309506, 0), Vector(-4.286398, 5.510894, 0), Vector(-4.298246, 5.605263, 0)], [4, 1, 1, 1, 1, 1, 1, 1, 4], [0, 1.325220203, 2.558031484, 3.6987413, 4.747031617, 5.69752876, 6.556083798, 7.323389997, 8], False, 3, [1, 1, 1, 1, 1, 1, 1, 1, 1, 1, 1], False),  # 25
    Part.BSplineCurve([Vector(-7.807018, -9.412281, 0), Vector(-7.657973, -9.300089, 0), Vector(-7.363261, -9.078246, 0), Vector(-6.955815, -8.710596, 0), Vector(-6.57425, -8.32843, 0), Vector(-6.223348, -7.926247, 0), Vector(-5.904578, -7.503233, 0), Vector(-5.618397, -7.059528, 0), Vector(-5.360625, -6.597132, 0), Vector(-5.135264, -6.115998, 0), Vector(-4.940375, -5.623172, 0), Vector(-4.765348, -5.126553, 0), Vector(-4.61479, -4.626941, 0), Vector(-4.485965, -4.124417, 0), Vector(-4.385577, -3.617433, 0), Vector(-4.30768, -3.107532, 0), Vector(-4.251339, -2.595099, 0), Vector(-4.218416, -1.902923, 0), Vector(-4.195596, -1.026008, 0), Vector(-4.174639, 0.042281, 0), Vector(-4.16138, 1.132195, 0), Vector(-4.159065, 1.866035, 0), Vector(-4.157895, 2.236842, 0)], [4, 1, 1, 1, 1, 1, 1, 1, 1, 1, 1, 1, 1, 1, 1, 1, 1, 1, 1, 1, 4], [0, 0.876110196, 1.73237371, 2.575729557, 3.4124282, 4.237942316, 5.062170833, 5.891260029, 6.723431221, 7.556418375, 8.38034529, 9.196777122, 10.007322445, 10.81680406, 11.623928264, 12.430374722, 13.237591303, 14.878759917, 16.552082939, 18.25777509, 20], False, 3, [1, 1, 1, 1, 1, 1, 1, 1, 1, 1, 1, 1, 1, 1, 1, 1, 1, 1, 1, 1, 1, 1, 1], False),  # 26
    Part.BSplineCurve([Vector(-6.473684, -10.324561, 0), Vector(-6.559733, -10.22341, 0), Vector(-6.732267, -10.020593, 0), Vector(-7.051817, -9.772809, 0), Vector(-7.407422, -9.558009, 0), Vector(-7.671582, -9.461673, 0), Vector(-7.807018, -9.412281, 0)], [4, 1, 1, 1, 4], [0, 0.970214787, 1.94535571, 2.94657452, 4], False, 3, [1, 1, 1, 1, 1, 1, 1], False),  # 27
    Part.BSplineCurve([Vector(-6.192982, 3.921053, 0), Vector(-6.213127, 3.470616, 0), Vector(-6.253907, 2.558784, 0), Vector(-6.26005, 1.646058, 0), Vector(-6.263158, 1.184211, 0)], [4, 1, 4], [0, 0.987980705, 2], False, 3, [1, 1, 1, 1, 1], False),  # 28
    Part.LineSegment(Vector(-6.192982, 3.921053, 0), Vector(-7.666667, 3.921053, 0)),  # 29
    Part.BSplineCurve([Vector(-7.596491, 1.254386, 0), Vector(-7.597624, 1.485712, 0), Vector(-7.599859, 1.942336, 0), Vector(-7.613557, 2.618131, 0), Vector(-7.632693, 3.275868, 0), Vector(-7.655446, 3.707962, 0), Vector(-7.666667, 3.921053, 0)], [4, 1, 1, 1, 4], [0, 1.040483654, 2.053847617, 3.040239174, 4], False, 3, [1, 1, 1, 1, 1, 1, 1], False),  # 30
    Part.LineSegment(Vector(-7.596491, 1.254386, 0), Vector(-7.596491, -3.587719, 0)),  # 31
    Part.BSplineCurve([Vector(-7.666667, -6.324561, 0), Vector(-7.655524, -6.083741, 0), Vector(-7.633604, -5.610009, 0), Vector(-7.614101, -4.912466, 0), Vector(-7.600136, -4.241013, 0), Vector(-7.59769, -3.802584, 0), Vector(-7.596491, -3.587719, 0)], [4, 1, 1, 1, 4], [0, 1.05657797, 2.078450635, 3.058287504, 4], False, 3, [1, 1, 1, 1, 1, 1, 1], False),  # 32
    Part.LineSegment(Vector(-7.666667, -6.324561, 0), Vector(-6.192982, -6.324561, 0)),  # 33
    Part.BSplineCurve([Vector(-6.263158, -3.517544, 0), Vector(-6.262026, -3.760133, 0), Vector(-6.259791, -4.239279, 0), Vector(-6.246045, -4.949726, 0), Vector(-6.226937, -5.642975, 0), Vector(-6.204202, -6.09934, 0), Vector(-6.192982, -6.324561, 0)], [4, 1, 1, 1, 4], [0, 1.036632017, 2.04749195, 3.036413013, 4], False, 3, [1, 1, 1, 1, 1, 1, 1], False),  # 34
    Part.LineSegment(Vector(-6.263158, -3.517544, 0), Vector(-6.263158, 1.184211, 0)),  # 35
], False)
sketch2.addConstraint([
    Sketcher.Constraint("Block", 0),
    Sketcher.Constraint("Block", 2),
    Sketcher.Constraint("Block", 4),
    Sketcher.Constraint("Block", 9),
    Sketcher.Constraint("Block", 11),
    Sketcher.Constraint("Block", 15),
    Sketcher.Constraint("Block", 16),
    Sketcher.Constraint("Block", 17),
    Sketcher.Constraint("Block", 19),
    Sketcher.Constraint("Block", 21),
    Sketcher.Constraint("Block", 23),
    Sketcher.Constraint("Block", 24),
    Sketcher.Constraint("Block", 25),
    Sketcher.Constraint("Block", 26),
    Sketcher.Constraint("Block", 27),
    Sketcher.Constraint("Block", 28),
    Sketcher.Constraint("Block", 30),
    Sketcher.Constraint("Block", 32),
    Sketcher.Constraint("Block", 34),
    Sketcher.Constraint("Coincident", 0, 1, 1, 1),
    Sketcher.Constraint("Coincident", 1, 2, 2, 2),
    Sketcher.Constraint("Coincident", 2, 1, 3, 1),
    Sketcher.Constraint("Coincident", 3, 2, 4, 2),
    Sketcher.Constraint("Coincident", 4, 1, 5, 1),
    Sketcher.Constraint("Coincident", 5, 2, 6, 1),
    Sketcher.Constraint("Coincident", 6, 2, 7, 1),
    Sketcher.Constraint("Coincident", 7, 2, 8, 1),
    Sketcher.Constraint("Coincident", 8, 2, 9, 2),
    Sketcher.Constraint("Coincident", 9, 1, 10, 1),
    Sketcher.Constraint("Coincident", 10, 2, 11, 2),
    Sketcher.Constraint("Coincident", 11, 1, 12, 1),
    Sketcher.Constraint("Coincident", 12, 2, 13, 1),
    Sketcher.Constraint("Coincident", 13, 2, 14, 1),
    Sketcher.Constraint("Coincident", 14, 2, 15, 2),
    Sketcher.Constraint("Coincident", 17, 1, 18, 1),
    Sketcher.Constraint("Coincident", 18, 2, 19, 2),
    Sketcher.Constraint("Coincident", 19, 1, 20, 1),
    Sketcher.Constraint("Coincident", 20, 2, 21, 2),
    Sketcher.Constraint("Coincident", 21, 1, 22, 1),
    Sketcher.Constraint("Coincident", 22, 2, 0, 2),
    Sketcher.Constraint("Coincident", 28, 1, 29, 1),
    Sketcher.Constraint("Coincident", 29, 2, 30, 2),
    Sketcher.Constraint("Coincident", 30, 1, 31, 1),
    Sketcher.Constraint("Coincident", 31, 2, 32, 2),
    Sketcher.Constraint("Coincident", 32, 1, 33, 1),
    Sketcher.Constraint("Coincident", 33, 2, 34, 2),
    Sketcher.Constraint("Coincident", 34, 1, 35, 1),
    Sketcher.Constraint("Coincident", 35, 2, 28, 2),
    Sketcher.Constraint("Horizontal", 5),
    Sketcher.Constraint("Vertical", 6),
    Sketcher.Constraint("Horizontal", 7),
    Sketcher.Constraint("Vertical", 8),
    Sketcher.Constraint("Vertical", 12),
    Sketcher.Constraint("Horizontal", 13),
    Sketcher.Constraint("Vertical", 14),
    Sketcher.Constraint("Horizontal", 7, 2, 12, 2),
    Sketcher.Constraint("DistanceX", 5, 1, 5, 2, Q("1.403509 mm")),
    Sketcher.Constraint("DistanceY", 6, 1, 6, 2, Q("8.912281 mm")),
])
pad2 = body.newObject("PartDesign::Pad", "Pad001")
pad2.Profile = sketch2
pad2.Length = 0.1

# Sketch on XY plane
sketch3 = body.newObject("Sketcher::SketchObject", "Sketch002")
sketch3.AttachmentSupport = (doc.getObject("XY_Plane"), [""])
sketch3.MapMode = "FlatFace"
sketch3.addGeometry([
    Part.Circle(Vector(0, 0, 0), Vector(0, 0, 1), 13.1),
    Part.Circle(Vector(0, 0, 0), Vector(0, 0, 1), 12.7),
], False)
sketch3.addConstraint([
    Sketcher.Constraint("Coincident", 0, 3, -1, 1),
    Sketcher.Constraint("Coincident", 1, 3, -1, 1),
    Sketcher.Constraint("Diameter", 0, Q("26.2 mm")),
    Sketcher.Constraint("Diameter", 1, Q("25.4 mm")),
])
pad3 = body.newObject("PartDesign::Pad", "Pad002")
pad3.Profile = sketch3
pad3.Length = 0.08

doc.recompute()
